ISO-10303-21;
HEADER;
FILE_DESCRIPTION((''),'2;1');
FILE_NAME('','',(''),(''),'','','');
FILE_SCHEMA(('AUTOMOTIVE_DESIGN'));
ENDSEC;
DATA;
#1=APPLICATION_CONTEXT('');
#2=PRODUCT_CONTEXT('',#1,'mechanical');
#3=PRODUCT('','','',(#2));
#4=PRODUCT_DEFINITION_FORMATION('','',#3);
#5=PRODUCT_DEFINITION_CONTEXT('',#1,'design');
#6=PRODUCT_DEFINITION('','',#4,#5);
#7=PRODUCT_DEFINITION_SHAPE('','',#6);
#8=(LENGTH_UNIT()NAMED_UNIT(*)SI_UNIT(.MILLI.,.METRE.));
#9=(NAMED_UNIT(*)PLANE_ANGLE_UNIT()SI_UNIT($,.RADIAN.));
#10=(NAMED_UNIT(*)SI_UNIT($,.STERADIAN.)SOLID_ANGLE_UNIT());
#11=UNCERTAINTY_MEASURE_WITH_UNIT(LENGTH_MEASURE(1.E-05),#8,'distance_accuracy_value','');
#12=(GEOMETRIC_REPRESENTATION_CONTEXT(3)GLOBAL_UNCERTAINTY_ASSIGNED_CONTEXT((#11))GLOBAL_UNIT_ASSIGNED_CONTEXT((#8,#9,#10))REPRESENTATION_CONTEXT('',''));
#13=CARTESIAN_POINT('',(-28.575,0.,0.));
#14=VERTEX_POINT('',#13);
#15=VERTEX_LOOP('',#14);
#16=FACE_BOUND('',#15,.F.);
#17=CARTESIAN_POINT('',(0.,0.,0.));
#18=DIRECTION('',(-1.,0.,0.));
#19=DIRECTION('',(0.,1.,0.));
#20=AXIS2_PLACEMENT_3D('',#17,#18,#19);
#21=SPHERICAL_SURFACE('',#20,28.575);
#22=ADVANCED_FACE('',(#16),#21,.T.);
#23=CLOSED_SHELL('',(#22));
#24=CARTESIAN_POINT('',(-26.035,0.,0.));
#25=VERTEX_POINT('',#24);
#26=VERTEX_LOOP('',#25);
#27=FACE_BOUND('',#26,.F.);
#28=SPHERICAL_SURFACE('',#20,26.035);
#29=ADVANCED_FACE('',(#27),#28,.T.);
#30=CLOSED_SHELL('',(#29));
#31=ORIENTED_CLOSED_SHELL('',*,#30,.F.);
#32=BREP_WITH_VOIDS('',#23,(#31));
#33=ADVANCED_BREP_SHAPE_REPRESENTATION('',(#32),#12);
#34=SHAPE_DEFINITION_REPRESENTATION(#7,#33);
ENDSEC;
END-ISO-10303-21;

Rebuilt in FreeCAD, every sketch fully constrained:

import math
import FreeCAD as App
import Part
import Sketcher
from FreeCAD import Vector
Q = App.Units.Quantity

doc = App.newDocument("Part")
body = doc.addObject("PartDesign::Body", "Body")

# Sketch on XY plane
sketch1 = body.newObject("Sketcher::SketchObject", "Sketch")
sketch1.AttachmentSupport = (doc.getObject("XY_Plane"), [""])
sketch1.MapMode = "FlatFace"
sketch1.addGeometry(Part.LineSegment(Vector(26, 0, 0), Vector(28.6, 0, 0)), False)
sketch1.addGeometry(Part.ArcOfCircle(Part.Circle(Vector(0, 0, 0), Vector(0, 0, 1), 28.6), math.radians(0), math.radians(180)), False)
sketch1.addGeometry(Part.LineSegment(Vector(-28.6, 0, 0), Vector(-26, 0, 0)), False)
sketch1.addGeometry(Part.ArcOfCircle(Part.Circle(Vector(0, 0, 0), Vector(0, 0, 1), 26), math.radians(0), math.radians(180)), False)
sketch1.addConstraint(Sketcher.Constraint("Coincident", 0, 2, 1, 1))
sketch1.addConstraint(Sketcher.Constraint("Coincident", 1, 2, 2, 1))
sketch1.addConstraint(Sketcher.Constraint("Coincident", 2, 2, 3, 2))
sketch1.addConstraint(Sketcher.Constraint("Coincident", 3, 1, 0, 1))
sketch1.addConstraint(Sketcher.Constraint("Horizontal", 0))
sketch1.addConstraint(Sketcher.Constraint("Horizontal", 2))
sketch1.addConstraint(Sketcher.Constraint("Coincident", 1, 3, -1, 1))
sketch1.addConstraint(Sketcher.Constraint("Coincident", 3, 3, -1, 1))
sketch1.addConstraint(Sketcher.Constraint("PointOnObject", 0, 2, -1))
sketch1.addConstraint(Sketcher.Constraint("PointOnObject", 1, 2, -1))
sketch1.addConstraint(Sketcher.Constraint("DistanceX", 0, 1, 0, 2, Q("0.1 in")))
sketch1.addConstraint(Sketcher.Constraint("Radius", 1, Q("1.125 in")))
revolution = body.newObject("PartDesign::Revolution", "Revolution")
revolution.Profile = sketch1
revolution.ReferenceAxis = (sketch1, ["H_Axis"])
revolution.Angle = 360

doc.recompute()
